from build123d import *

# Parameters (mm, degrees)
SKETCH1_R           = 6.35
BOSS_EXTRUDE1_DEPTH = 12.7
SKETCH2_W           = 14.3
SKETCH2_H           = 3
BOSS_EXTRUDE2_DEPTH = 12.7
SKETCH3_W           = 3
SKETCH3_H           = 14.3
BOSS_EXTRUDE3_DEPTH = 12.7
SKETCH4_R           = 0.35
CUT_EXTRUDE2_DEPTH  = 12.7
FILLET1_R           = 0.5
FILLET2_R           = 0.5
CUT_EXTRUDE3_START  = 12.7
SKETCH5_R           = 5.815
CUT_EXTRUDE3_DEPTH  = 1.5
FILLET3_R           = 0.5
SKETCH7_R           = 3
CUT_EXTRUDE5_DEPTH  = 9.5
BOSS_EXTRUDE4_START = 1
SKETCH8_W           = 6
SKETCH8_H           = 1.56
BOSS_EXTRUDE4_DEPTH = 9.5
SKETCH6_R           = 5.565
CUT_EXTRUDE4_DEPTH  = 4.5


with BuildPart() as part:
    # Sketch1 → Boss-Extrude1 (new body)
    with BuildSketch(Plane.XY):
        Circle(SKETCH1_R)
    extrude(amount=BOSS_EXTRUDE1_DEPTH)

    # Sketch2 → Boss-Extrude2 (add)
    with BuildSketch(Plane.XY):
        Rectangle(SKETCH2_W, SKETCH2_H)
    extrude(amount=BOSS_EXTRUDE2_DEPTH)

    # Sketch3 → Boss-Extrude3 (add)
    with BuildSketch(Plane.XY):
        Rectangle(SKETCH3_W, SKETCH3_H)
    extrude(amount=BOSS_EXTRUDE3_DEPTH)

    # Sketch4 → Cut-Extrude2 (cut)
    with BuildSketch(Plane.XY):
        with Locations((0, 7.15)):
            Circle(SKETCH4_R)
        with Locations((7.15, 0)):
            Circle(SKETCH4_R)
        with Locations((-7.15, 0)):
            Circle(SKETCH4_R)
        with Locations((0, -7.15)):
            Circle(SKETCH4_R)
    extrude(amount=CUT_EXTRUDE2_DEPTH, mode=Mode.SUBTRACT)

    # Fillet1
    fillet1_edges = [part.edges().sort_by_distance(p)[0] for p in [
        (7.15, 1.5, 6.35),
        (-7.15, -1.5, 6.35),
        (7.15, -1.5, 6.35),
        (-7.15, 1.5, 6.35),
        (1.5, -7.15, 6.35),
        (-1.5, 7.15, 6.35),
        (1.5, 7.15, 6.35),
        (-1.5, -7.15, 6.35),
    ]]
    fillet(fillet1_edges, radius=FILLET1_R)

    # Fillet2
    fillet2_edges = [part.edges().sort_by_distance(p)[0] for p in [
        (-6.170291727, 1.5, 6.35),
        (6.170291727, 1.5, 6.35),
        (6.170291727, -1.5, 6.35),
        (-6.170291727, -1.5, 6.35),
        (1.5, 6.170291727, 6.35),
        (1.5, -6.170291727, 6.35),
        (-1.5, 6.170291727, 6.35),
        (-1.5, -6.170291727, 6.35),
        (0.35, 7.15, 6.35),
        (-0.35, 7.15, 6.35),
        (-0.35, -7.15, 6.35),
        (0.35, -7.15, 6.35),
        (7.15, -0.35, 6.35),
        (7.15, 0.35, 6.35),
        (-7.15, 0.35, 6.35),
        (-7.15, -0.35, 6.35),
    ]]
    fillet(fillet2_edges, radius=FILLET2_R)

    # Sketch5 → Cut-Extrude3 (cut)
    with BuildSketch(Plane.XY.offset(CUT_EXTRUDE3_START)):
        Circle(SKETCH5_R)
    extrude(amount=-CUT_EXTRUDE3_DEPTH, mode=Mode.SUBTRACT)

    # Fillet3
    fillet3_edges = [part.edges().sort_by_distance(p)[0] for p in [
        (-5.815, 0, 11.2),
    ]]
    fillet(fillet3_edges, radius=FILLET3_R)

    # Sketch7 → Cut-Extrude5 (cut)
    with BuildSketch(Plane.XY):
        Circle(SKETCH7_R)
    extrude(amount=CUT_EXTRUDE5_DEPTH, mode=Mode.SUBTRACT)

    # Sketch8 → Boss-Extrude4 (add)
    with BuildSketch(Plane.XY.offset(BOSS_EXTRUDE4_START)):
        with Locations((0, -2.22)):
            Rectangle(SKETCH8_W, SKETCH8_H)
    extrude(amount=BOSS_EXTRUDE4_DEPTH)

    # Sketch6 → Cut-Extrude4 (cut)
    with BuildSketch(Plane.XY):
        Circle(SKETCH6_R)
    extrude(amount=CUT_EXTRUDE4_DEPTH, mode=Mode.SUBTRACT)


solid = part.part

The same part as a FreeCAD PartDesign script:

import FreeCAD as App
import Part
import Sketcher


def edges_at(feature, points):
    """Names of the edges that pass closest to the given points."""
    edges = feature.Shape.Edges
    near = lambda p: min(range(len(edges)), key=lambda i: edges[i].distToShape(Part.Vertex(*p))[0])
    return sorted({f"Edge{near(p) + 1}" for p in points})


def add_polygon(sketch, points):
    """Adds a closed chain of lines whose ends are joined by coincident constraints."""
    first, n = sketch.GeometryCount, len(points)
    for a, b in zip(points, points[1:] + points[:1]):
        sketch.addGeometry(Part.LineSegment(App.Vector(*a, 0), App.Vector(*b, 0)), False)
    for i in range(n):
        sketch.addConstraint(Sketcher.Constraint("Coincident", first + i, 2, first + (i + 1) % n, 1))

doc = App.newDocument("Part")
body = doc.addObject("PartDesign::Body", "Body")

sketch1 = body.newObject("Sketcher::SketchObject", "Sketch")
sketch1.AttachmentSupport = (doc.getObject("XY_Plane"), [""])
sketch1.MapMode = "FlatFace"
sketch1.addGeometry(Part.Circle(App.Vector(0, 0, 0), App.Vector(0, 0, 1), 6.35), False)
sketch1.addConstraint([
    Sketcher.Constraint("Coincident", 0, 3, -1, 1),
    Sketcher.Constraint("Diameter", 0, 12.7),
])
pad1 = body.newObject("PartDesign::Pad", "Pad")
pad1.Profile = sketch1
pad1.Length = 12.7

sketch2 = body.newObject("Sketcher::SketchObject", "Sketch001")
sketch2.AttachmentSupport = (doc.getObject("XY_Plane"), [""])
sketch2.MapMode = "FlatFace"
add_polygon(sketch2, [(-7.15, 1.5), (-7.15, -1.5), (7.15, -1.5), (7.15, 1.5)])
sketch2.addConstraint([
    Sketcher.Constraint("Vertical", 0),
    Sketcher.Constraint("Horizontal", 1),
    Sketcher.Constraint("Vertical", 2),
    Sketcher.Constraint("Horizontal", 3),
    Sketcher.Constraint("Symmetric", 0, 2, 2, 2, -1, 1),
    Sketcher.Constraint("DistanceY", 0, 2, 0, 1, 3.0),
    Sketcher.Constraint("DistanceX", 1, 1, 1, 2, 14.3),
])
pad2 = body.newObject("PartDesign::Pad", "Pad001")
pad2.Profile = sketch2
pad2.Length = 12.7

sketch3 = body.newObject("Sketcher::SketchObject", "Sketch002")
sketch3.AttachmentSupport = (doc.getObject("XY_Plane"), [""])
sketch3.MapMode = "FlatFace"
add_polygon(sketch3, [(-1.5, 7.15), (-1.5, -7.15), (1.5, -7.15), (1.5, 7.15)])
sketch3.addConstraint([
    Sketcher.Constraint("Vertical", 0),
    Sketcher.Constraint("Horizontal", 1),
    Sketcher.Constraint("Vertical", 2),
    Sketcher.Constraint("Horizontal", 3),
    Sketcher.Constraint("Symmetric", 0, 2, 2, 2, -1, 1),
    Sketcher.Constraint("DistanceX", 1, 1, 1, 2, 3.0),
    Sketcher.Constraint("DistanceY", 0, 2, 0, 1, 14.3),
])
pad3 = body.newObject("PartDesign::Pad", "Pad002")
pad3.Profile = sketch3
pad3.Length = 12.7

sketch4 = body.newObject("Sketcher::SketchObject", "Sketch003")
sketch4.AttachmentSupport = (doc.getObject("XY_Plane"), [""])
sketch4.MapMode = "FlatFace"
sketch4.addGeometry([
    Part.Circle(App.Vector(0, 7.15, 0), App.Vector(0, 0, 1), 0.35),
    Part.Circle(App.Vector(7.15, 0, 0), App.Vector(0, 0, 1), 0.35),
    Part.Circle(App.Vector(-7.15, 0, 0), App.Vector(0, 0, 1), 0.35),
    Part.Circle(App.Vector(0, -7.15, 0), App.Vector(0, 0, 1), 0.35),
], False)
sketch4.addConstraint([
    Sketcher.Constraint("Equal", 0, 1),
    Sketcher.Constraint("Equal", 1, 2),
    Sketcher.Constraint("Equal", 2, 3),
    Sketcher.Constraint("Symmetric", 1, 3, 2, 3, -1, 1),
    Sketcher.Constraint("Symmetric", 0, 3, 3, 3, -1, 1),
    Sketcher.Constraint("PointOnObject", 0, 3, -2),
    Sketcher.Constraint("PointOnObject", 1, 3, -1),
    Sketcher.Constraint("Diameter", 0, 0.7),
    Sketcher.Constraint("DistanceX", 2, 3, 1, 3, 14.3),
    Sketcher.Constraint("DistanceY", 3, 3, 0, 3, 14.3),
])
pocket1 = body.newObject("PartDesign::Pocket", "Pocket")
pocket1.Profile = sketch4
pocket1.Length = 12.7
pocket1.Reversed = True
doc.recompute()

fillet = body.newObject("PartDesign::Fillet", "Fillet")
fillet.Base = (pocket1, edges_at(pocket1, [
    (7.15, 1.5, 6.35),
    (-7.15, -1.5, 6.35),
    (7.15, -1.5, 6.35),
    (-7.15, 1.5, 6.35),
    (1.5, -7.15, 6.35),
    (-1.5, 7.15, 6.35),
    (1.5, 7.15, 6.35),
    (-1.5, -7.15, 6.35),
]))
fillet.Radius = 0.5
doc.recompute()

fillet2 = body.newObject("PartDesign::Fillet", "Fillet001")
fillet2.Base = (fillet, edges_at(fillet, [
    (-6.17, 1.5, 6.35),
    (6.17, 1.5, 6.35),
    (6.17, -1.5, 6.35),
    (-6.17, -1.5, 6.35),
    (1.5, 6.17, 6.35),
    (1.5, -6.17, 6.35),
    (-1.5, 6.17, 6.35),
    (-1.5, -6.17, 6.35),
    (0.35, 7.15, 6.35),
    (-0.35, 7.15, 6.35),
    (-0.35, -7.15, 6.35),
    (0.35, -7.15, 6.35),
    (7.15, -0.35, 6.35),
    (7.15, 0.35, 6.35),
    (-7.15, 0.35, 6.35),
    (-7.15, -0.35, 6.35),
]))
fillet2.Radius = 0.5

sketch5 = body.newObject("Sketcher::SketchObject", "Sketch004")
sketch5.AttachmentSupport = (doc.getObject("XY_Plane"), [""])
sketch5.MapMode = "FlatFace"
sketch5.AttachmentOffset = App.Placement(App.Vector(0, 0, 12.7), App.Rotation())
sketch5.addGeometry(Part.Circle(App.Vector(0, 0, 0), App.Vector(0, 0, 1), 5.815), False)
sketch5.addConstraint([
    Sketcher.Constraint("Coincident", 0, 3, -1, 1),
    Sketcher.Constraint("Diameter", 0, 11.63),
])
pocket2 = body.newObject("PartDesign::Pocket", "Pocket001")
pocket2.Profile = sketch5
pocket2.Length = 1.5
doc.recompute()

fillet3 = body.newObject("PartDesign::Fillet", "Fillet002")
fillet3.Base = (pocket2, edges_at(pocket2, [(-5.815, 0, 11.2)]))
fillet3.Radius = 0.5

sketch6 = body.newObject("Sketcher::SketchObject", "Sketch005")
sketch6.AttachmentSupport = (doc.getObject("XY_Plane"), [""])
sketch6.MapMode = "FlatFace"
sketch6.addGeometry(Part.Circle(App.Vector(0, 0, 0), App.Vector(0, 0, 1), 3), False)
sketch6.addConstraint([
    Sketcher.Constraint("Coincident", 0, 3, -1, 1),
    Sketcher.Constraint("Diameter", 0, 6.0),
])
pocket3 = body.newObject("PartDesign::Pocket", "Pocket002")
pocket3.Profile = sketch6
pocket3.Length = 9.5
pocket3.Reversed = True

sketch7 = body.newObject("Sketcher::SketchObject", "Sketch006")
sketch7.AttachmentSupport = (doc.getObject("XY_Plane"), [""])
sketch7.MapMode = "FlatFace"
sketch7.AttachmentOffset = App.Placement(App.Vector(0, 0, 1), App.Rotation())
add_polygon(sketch7, [(-3, -1.44), (-3, -3), (3, -3), (3, -1.44)])
sketch7.addConstraint([
    Sketcher.Constraint("Vertical", 0),
    Sketcher.Constraint("Horizontal", 1),
    Sketcher.Constraint("Vertical", 2),
    Sketcher.Constraint("Horizontal", 3),
    Sketcher.Constraint("DistanceX", 1, 1, 1, 2, 6.0),
    Sketcher.Constraint("DistanceX", 0, 2, -1, 1, 3.0),
    Sketcher.Constraint("DistanceY", 0, 2, -1, 1, 3.0),
    Sketcher.Constraint("DistanceY", 0, 2, 0, 1, 1.56),
])
pad4 = body.newObject("PartDesign::Pad", "Pad003")
pad4.Profile = sketch7
pad4.Length = 9.5

sketch8 = body.newObject("Sketcher::SketchObject", "Sketch007")
sketch8.AttachmentSupport = (doc.getObject("XY_Plane"), [""])
sketch8.MapMode = "FlatFace"
sketch8.addGeometry(Part.Circle(App.Vector(0, 0, 0), App.Vector(0, 0, 1), 5.565), False)
sketch8.addConstraint([
    Sketcher.Constraint("Coincident", 0, 3, -1, 1),
    Sketcher.Constraint("Diameter", 0, 11.13),
])
pocket4 = body.newObject("PartDesign::Pocket", "Pocket003")
pocket4.Profile = sketch8
pocket4.Length = 4.5
pocket4.Reversed = True

doc.recompute()
